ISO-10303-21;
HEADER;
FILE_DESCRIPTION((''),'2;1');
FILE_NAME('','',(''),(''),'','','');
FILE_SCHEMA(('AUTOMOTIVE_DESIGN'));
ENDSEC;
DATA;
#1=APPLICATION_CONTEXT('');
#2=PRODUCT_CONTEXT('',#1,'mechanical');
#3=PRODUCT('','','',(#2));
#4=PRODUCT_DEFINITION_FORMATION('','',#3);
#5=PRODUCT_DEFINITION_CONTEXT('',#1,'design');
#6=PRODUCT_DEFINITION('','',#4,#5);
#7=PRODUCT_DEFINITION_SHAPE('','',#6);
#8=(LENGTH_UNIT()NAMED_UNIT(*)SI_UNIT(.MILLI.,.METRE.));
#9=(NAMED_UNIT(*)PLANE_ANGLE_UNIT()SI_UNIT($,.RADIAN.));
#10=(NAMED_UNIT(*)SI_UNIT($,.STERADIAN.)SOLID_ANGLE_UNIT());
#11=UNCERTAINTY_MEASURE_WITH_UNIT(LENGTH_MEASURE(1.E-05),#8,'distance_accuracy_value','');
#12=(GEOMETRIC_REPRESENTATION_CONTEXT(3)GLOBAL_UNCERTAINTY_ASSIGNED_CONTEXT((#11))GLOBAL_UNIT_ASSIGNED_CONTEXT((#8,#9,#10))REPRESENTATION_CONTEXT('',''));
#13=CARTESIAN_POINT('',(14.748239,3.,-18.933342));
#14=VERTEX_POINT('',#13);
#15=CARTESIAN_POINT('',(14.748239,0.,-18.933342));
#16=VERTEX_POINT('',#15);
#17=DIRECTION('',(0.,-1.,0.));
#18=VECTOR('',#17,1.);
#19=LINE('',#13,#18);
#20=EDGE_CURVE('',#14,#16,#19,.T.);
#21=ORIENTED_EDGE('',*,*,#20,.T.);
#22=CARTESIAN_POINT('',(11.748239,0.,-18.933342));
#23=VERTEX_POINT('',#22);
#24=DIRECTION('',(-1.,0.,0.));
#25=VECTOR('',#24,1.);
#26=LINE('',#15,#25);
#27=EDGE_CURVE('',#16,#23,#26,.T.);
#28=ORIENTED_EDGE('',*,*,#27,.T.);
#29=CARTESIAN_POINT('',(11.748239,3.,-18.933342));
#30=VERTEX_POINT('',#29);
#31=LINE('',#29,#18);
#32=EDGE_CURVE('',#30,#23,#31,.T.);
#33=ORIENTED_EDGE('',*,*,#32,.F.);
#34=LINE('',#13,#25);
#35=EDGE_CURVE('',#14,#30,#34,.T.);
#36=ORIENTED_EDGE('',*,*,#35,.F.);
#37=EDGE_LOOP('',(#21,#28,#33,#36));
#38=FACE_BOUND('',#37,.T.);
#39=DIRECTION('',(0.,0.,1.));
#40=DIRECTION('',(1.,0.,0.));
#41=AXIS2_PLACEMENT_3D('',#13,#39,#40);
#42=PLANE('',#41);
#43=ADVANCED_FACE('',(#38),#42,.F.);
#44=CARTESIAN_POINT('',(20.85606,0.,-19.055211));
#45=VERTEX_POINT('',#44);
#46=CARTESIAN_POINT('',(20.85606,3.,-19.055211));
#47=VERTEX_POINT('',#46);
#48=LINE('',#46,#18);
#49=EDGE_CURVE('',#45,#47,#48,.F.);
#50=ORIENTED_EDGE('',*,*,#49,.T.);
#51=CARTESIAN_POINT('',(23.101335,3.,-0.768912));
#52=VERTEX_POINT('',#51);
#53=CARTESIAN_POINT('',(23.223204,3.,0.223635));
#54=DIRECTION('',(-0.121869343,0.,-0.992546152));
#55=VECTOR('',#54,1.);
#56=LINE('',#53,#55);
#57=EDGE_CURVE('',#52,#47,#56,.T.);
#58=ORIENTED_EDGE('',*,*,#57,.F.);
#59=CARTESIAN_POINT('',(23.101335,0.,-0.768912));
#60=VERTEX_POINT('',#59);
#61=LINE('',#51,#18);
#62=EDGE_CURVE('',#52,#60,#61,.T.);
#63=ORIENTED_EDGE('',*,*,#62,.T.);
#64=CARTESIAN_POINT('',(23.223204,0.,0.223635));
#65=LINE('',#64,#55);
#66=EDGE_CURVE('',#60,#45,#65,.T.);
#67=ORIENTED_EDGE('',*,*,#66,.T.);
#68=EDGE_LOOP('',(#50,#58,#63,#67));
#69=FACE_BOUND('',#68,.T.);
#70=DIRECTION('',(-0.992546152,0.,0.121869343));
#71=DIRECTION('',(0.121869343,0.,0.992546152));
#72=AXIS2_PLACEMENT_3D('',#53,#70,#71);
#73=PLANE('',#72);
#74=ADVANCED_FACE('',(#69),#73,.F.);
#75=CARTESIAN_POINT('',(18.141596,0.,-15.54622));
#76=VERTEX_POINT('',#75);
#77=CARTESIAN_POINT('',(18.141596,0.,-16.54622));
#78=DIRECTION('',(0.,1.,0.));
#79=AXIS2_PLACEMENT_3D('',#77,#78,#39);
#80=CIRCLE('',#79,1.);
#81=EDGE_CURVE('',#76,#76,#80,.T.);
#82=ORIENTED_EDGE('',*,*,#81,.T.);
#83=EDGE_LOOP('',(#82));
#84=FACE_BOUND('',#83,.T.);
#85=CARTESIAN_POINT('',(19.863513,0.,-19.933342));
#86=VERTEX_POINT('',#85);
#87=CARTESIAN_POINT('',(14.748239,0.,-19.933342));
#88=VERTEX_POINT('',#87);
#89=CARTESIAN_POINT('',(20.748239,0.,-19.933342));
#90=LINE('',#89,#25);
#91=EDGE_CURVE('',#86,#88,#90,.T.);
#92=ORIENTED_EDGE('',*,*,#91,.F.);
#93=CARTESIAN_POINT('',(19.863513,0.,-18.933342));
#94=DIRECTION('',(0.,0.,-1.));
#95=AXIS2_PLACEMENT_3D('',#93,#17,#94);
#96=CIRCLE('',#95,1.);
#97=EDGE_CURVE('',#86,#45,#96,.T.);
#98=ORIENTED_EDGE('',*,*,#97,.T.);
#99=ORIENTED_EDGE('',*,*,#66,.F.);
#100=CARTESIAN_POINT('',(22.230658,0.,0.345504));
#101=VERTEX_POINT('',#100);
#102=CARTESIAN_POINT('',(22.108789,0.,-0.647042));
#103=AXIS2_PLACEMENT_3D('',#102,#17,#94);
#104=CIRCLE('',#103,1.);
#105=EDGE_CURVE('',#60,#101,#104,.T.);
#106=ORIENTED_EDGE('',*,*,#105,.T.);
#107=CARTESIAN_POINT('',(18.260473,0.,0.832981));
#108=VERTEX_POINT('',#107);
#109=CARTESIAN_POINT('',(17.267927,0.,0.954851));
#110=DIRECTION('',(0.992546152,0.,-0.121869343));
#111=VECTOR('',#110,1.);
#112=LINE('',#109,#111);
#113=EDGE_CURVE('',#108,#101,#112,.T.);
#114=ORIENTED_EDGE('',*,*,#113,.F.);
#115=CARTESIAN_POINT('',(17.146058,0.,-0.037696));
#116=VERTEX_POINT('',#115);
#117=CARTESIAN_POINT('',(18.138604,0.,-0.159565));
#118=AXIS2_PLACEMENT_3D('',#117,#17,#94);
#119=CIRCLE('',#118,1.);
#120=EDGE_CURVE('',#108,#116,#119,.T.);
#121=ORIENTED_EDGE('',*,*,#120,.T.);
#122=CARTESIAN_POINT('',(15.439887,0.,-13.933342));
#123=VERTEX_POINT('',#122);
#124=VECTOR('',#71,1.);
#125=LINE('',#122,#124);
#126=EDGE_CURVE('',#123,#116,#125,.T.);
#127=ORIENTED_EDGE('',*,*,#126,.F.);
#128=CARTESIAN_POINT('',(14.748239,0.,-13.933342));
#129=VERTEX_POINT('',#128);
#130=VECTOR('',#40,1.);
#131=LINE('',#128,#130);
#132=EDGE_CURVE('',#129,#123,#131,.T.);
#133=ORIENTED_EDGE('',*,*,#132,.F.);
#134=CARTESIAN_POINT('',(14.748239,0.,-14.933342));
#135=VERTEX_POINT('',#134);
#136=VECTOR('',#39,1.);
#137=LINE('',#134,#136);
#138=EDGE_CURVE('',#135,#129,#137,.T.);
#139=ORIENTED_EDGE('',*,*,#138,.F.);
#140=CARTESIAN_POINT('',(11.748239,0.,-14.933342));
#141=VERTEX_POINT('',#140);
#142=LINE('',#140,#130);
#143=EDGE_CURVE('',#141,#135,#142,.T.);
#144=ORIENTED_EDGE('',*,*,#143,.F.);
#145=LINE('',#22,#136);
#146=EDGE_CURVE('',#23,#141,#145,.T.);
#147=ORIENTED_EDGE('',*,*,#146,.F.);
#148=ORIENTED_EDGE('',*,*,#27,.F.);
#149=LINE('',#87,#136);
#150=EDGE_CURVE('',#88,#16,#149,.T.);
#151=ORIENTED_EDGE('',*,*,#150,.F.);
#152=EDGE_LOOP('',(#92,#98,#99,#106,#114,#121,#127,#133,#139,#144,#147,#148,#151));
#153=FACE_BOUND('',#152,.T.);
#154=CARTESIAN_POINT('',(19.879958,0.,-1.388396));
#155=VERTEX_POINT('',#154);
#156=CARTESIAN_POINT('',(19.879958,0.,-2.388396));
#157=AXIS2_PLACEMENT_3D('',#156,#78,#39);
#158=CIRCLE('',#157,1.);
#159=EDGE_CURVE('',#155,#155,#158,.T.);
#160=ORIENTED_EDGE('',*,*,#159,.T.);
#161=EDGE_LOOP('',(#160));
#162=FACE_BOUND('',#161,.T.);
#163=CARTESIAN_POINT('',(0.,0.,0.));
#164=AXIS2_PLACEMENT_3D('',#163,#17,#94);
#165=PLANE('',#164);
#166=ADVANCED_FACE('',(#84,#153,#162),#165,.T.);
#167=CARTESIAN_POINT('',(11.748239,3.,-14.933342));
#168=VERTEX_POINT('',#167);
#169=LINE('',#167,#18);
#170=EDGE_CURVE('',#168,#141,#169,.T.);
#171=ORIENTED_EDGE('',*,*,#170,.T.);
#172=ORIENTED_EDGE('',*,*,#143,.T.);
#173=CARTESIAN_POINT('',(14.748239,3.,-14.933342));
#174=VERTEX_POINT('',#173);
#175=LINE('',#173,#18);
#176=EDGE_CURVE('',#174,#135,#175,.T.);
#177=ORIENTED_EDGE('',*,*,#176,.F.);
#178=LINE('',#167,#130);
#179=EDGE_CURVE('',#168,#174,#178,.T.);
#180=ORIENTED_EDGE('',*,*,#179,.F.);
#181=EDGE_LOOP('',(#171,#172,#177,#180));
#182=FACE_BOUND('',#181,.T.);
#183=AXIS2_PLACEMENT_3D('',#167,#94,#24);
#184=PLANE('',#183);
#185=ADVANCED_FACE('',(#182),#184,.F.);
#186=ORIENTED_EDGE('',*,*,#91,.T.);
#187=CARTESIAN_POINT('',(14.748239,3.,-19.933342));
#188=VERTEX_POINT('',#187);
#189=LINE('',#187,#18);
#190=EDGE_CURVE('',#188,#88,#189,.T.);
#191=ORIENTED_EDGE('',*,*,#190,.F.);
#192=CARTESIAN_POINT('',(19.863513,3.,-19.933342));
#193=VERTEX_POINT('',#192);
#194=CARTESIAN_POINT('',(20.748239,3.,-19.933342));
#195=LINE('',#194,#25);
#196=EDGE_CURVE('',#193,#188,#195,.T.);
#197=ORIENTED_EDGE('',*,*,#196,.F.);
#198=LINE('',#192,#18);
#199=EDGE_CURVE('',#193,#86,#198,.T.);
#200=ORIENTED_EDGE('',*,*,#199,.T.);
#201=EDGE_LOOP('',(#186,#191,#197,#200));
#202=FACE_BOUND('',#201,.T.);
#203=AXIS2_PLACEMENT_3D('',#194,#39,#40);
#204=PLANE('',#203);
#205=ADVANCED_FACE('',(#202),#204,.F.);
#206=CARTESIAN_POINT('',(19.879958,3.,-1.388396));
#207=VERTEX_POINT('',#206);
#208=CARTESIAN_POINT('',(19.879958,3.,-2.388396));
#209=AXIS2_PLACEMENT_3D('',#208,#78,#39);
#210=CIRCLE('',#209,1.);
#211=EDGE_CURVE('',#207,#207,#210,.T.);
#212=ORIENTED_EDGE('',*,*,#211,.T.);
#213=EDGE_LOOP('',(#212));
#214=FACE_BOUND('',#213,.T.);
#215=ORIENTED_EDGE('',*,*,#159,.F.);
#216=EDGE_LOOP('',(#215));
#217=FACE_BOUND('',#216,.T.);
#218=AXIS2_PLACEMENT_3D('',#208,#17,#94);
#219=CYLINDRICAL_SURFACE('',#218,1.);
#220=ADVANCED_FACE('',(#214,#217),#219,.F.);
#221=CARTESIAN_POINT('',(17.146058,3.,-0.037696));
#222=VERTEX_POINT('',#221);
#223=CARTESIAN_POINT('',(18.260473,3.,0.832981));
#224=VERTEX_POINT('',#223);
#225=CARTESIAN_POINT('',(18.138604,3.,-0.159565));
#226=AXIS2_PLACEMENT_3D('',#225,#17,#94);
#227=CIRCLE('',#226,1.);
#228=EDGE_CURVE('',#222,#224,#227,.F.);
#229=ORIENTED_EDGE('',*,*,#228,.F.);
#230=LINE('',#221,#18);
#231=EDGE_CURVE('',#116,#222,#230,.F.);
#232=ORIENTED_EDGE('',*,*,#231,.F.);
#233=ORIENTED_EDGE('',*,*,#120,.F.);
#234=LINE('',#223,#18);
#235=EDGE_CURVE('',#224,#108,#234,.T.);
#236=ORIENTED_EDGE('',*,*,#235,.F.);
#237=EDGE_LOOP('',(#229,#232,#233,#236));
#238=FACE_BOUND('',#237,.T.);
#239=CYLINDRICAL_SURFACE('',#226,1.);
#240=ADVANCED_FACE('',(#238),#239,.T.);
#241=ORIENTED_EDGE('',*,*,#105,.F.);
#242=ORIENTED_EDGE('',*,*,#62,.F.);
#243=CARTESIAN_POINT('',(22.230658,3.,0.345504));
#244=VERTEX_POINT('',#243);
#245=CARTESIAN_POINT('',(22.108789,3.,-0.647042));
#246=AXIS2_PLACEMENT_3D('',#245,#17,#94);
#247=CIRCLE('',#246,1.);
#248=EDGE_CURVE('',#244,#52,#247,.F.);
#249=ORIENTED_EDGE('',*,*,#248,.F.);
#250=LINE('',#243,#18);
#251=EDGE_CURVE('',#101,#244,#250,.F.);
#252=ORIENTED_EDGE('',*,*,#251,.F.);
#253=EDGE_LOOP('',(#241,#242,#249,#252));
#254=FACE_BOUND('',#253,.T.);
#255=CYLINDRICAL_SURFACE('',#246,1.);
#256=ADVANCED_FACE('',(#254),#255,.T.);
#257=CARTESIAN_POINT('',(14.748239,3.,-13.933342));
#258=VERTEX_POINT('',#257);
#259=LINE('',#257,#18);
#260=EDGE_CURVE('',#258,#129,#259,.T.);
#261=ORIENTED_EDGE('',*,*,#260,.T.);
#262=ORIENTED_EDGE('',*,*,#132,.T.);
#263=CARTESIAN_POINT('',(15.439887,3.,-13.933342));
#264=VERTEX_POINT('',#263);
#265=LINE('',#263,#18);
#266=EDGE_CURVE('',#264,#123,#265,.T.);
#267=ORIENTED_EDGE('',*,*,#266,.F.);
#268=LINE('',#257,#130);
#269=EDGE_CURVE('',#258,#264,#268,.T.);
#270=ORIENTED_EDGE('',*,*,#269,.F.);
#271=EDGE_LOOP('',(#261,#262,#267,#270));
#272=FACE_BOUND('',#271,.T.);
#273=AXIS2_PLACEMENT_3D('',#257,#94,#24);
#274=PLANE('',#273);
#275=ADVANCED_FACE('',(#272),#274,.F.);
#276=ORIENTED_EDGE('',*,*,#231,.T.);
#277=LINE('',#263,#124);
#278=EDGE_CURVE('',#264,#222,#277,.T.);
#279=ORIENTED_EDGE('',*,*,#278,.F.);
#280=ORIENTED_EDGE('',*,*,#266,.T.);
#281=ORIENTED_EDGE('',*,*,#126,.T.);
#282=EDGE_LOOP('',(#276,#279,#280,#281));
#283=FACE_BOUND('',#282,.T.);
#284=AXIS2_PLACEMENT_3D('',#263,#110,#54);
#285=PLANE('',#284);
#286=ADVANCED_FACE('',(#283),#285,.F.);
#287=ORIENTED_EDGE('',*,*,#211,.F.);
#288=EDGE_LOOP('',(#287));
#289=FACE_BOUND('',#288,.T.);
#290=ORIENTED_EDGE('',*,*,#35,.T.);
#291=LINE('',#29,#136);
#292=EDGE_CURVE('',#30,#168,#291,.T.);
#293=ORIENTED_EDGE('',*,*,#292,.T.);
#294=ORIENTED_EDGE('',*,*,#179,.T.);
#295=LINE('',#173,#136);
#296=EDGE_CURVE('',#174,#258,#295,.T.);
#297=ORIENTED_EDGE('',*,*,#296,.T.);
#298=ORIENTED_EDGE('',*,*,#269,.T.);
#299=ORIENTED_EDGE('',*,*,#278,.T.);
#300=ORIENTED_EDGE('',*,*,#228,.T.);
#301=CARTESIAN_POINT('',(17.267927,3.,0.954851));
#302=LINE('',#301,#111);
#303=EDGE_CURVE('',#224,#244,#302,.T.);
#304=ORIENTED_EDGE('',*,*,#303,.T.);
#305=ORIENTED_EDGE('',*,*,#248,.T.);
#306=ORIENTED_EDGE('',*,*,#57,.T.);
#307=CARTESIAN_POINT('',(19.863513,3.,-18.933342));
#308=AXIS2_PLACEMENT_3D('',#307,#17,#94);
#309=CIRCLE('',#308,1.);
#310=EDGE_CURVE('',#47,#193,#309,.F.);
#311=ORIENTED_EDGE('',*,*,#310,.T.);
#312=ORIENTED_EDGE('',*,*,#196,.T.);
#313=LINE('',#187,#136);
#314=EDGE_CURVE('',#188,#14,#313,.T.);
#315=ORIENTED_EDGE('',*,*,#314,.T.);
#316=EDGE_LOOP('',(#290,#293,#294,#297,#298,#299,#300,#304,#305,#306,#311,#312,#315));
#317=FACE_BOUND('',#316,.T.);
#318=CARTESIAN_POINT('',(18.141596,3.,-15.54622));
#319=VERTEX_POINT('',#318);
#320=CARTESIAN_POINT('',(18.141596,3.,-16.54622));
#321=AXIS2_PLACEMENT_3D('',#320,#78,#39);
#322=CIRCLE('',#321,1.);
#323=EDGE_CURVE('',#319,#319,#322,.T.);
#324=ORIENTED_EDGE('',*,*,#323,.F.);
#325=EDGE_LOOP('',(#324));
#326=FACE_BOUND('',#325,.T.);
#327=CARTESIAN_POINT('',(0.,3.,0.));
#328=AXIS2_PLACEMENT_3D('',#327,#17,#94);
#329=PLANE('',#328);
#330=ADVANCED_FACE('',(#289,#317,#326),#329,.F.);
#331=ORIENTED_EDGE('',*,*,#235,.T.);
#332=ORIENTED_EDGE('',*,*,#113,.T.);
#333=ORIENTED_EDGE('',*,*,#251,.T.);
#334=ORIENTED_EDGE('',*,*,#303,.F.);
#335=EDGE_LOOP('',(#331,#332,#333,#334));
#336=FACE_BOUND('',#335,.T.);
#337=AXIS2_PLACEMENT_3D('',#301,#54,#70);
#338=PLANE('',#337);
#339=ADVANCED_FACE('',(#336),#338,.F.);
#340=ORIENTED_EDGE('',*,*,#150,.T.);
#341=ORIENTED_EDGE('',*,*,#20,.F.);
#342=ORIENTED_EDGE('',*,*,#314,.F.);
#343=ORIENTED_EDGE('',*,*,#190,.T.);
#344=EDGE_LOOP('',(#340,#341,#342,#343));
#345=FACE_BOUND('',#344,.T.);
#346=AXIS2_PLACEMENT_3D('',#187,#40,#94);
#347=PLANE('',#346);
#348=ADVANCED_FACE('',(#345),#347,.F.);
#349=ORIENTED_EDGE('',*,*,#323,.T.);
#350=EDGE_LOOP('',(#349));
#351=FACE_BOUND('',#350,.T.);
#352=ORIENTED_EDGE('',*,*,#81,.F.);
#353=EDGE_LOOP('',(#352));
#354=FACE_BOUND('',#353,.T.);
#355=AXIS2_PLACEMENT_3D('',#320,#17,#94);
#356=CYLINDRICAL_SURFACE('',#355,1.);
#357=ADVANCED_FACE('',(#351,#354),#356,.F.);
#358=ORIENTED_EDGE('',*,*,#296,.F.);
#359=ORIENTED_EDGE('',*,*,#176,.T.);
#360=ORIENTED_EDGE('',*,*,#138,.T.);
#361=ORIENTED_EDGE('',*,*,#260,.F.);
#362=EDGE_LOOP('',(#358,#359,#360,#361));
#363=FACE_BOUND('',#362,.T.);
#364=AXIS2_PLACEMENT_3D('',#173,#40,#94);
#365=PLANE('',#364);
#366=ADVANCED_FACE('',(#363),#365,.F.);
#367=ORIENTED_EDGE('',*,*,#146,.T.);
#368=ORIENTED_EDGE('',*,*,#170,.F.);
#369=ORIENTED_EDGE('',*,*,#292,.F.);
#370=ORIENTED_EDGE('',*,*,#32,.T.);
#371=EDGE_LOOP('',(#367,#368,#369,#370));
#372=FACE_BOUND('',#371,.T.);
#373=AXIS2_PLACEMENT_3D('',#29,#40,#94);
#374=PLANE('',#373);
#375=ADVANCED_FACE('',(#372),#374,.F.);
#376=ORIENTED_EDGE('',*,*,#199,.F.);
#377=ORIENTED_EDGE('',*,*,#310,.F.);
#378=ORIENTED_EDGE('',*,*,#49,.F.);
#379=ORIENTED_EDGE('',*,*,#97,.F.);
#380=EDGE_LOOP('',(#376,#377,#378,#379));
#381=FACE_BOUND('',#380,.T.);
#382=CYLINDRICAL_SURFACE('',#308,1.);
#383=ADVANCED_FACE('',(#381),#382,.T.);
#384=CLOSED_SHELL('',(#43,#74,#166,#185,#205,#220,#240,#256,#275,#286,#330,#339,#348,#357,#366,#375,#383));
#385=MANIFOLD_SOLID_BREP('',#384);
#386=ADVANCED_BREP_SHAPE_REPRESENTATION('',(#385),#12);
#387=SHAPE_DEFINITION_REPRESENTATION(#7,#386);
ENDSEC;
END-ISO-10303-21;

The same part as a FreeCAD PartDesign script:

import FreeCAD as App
import Part
import Sketcher

V = App.Vector
Q = App.Units.Quantity


def edges_at(feature, points):
    """Names of the edges that pass closest to the given points."""
    edges = feature.Shape.Edges
    near = lambda p: min(range(len(edges)), key=lambda i: edges[i].distToShape(Part.Vertex(*p))[0])
    return sorted({f"Edge{near(p) + 1}" for p in points})

doc = App.newDocument("Part")
body = doc.addObject("PartDesign::Body", "Body")

# Sketch on XZ plane
sketch1 = body.newObject("Sketcher::SketchObject", "Sketch")
sketch1.AttachmentSupport = (doc.getObject("XZ_Plane"), [""])
sketch1.MapMode = "FlatFace"
sketch1.addGeometry([
    Part.LineSegment(V(20.7, -19.9, 0), V(14.7, -19.9, 0)),  # 0
    Part.LineSegment(V(14.7, -19.9, 0), V(14.7, -18.9, 0)),  # 1
    Part.LineSegment(V(14.7, -18.9, 0), V(11.7, -18.9, 0)),  # 2
    Part.LineSegment(V(11.7, -18.9, 0), V(11.7, -14.9, 0)),  # 3
    Part.LineSegment(V(11.7, -14.9, 0), V(14.7, -14.9, 0)),  # 4
    Part.LineSegment(V(14.7, -14.9, 0), V(14.7, -13.9, 0)),  # 5
    Part.LineSegment(V(14.7, -13.9, 0), V(15.4, -13.9, 0)),  # 6
    Part.LineSegment(V(15.4, -13.9, 0), V(17.3, 1, 0)),  # 7
    Part.LineSegment(V(17.3, 1, 0), V(23.2, 0.2, 0)),  # 8
    Part.LineSegment(V(23.2, 0.2, 0), V(20.7, -19.9, 0)),  # 9
    Part.Circle(V(19.9, -2.4, 0), V(0, 0, 1), 1),  # 10
    Part.Circle(V(18.1, -16.5, 0), V(0, 0, 1), 1),  # 11
], False)
sketch1.addConstraint([
    Sketcher.Constraint("Coincident", 0, 2, 1, 1),
    Sketcher.Constraint("Coincident", 1, 2, 2, 1),
    Sketcher.Constraint("Coincident", 2, 2, 3, 1),
    Sketcher.Constraint("Coincident", 3, 2, 4, 1),
    Sketcher.Constraint("Coincident", 4, 2, 5, 1),
    Sketcher.Constraint("Coincident", 5, 2, 6, 1),
    Sketcher.Constraint("Coincident", 6, 2, 7, 1),
    Sketcher.Constraint("Coincident", 7, 2, 8, 1),
    Sketcher.Constraint("Coincident", 8, 2, 9, 1),
    Sketcher.Constraint("Coincident", 9, 2, 0, 1),
    Sketcher.Constraint("Horizontal", 0),
    Sketcher.Constraint("Vertical", 1),
    Sketcher.Constraint("Horizontal", 2),
    Sketcher.Constraint("Vertical", 3),
    Sketcher.Constraint("Horizontal", 4),
    Sketcher.Constraint("Vertical", 5),
    Sketcher.Constraint("Horizontal", 6),
    Sketcher.Constraint("Equal", 10, 11),
    Sketcher.Constraint("Perpendicular", 7, 8),
    Sketcher.Constraint("Perpendicular", 8, 9),
    Sketcher.Constraint("Vertical", 1, 2, 4, 2),
    Sketcher.Constraint("Equal", 1, 5),
    Sketcher.Constraint("Diameter", 10, Q("2 mm")),
    Sketcher.Constraint("DistanceX", 0, 2, 0, 1, Q("6 mm")),
    Sketcher.Constraint("DistanceX", 2, 2, 2, 1, Q("3 mm")),
    Sketcher.Constraint("DistanceY", 1, 1, 1, 2, Q("1 mm")),
    Sketcher.Constraint("DistanceY", 3, 1, 3, 2, Q("4 mm")),
    Sketcher.Constraint("Angle", 7, Q("83 deg")),
    Sketcher.Constraint("Distance", 7, Q("15 mm")),
    Sketcher.Constraint("Distance", 8, Q("6 mm")),
    Sketcher.Constraint("DistanceY", 11, 3, -1, 1, Q("16.54622 mm")),
    Sketcher.Constraint("DistanceX", -1, 1, 0, 2, Q("14.748239 mm")),
    Sketcher.Constraint("DistanceY", 0, 2, -1, 1, Q("19.933342 mm")),
    Sketcher.Constraint("DistanceX", 0, 2, 10, 3, Q("5.131719 mm")),
    Sketcher.Constraint("DistanceX", 6, 2, 11, 3, Q("2.701708 mm")),
    Sketcher.Constraint("DistanceY", 10, 3, 8, 2, Q("2.61203 mm")),
])
pad1 = body.newObject("PartDesign::Pad", "Pad")
pad1.Profile = sketch1
pad1.Length = 3
pad1.Reversed = True
doc.recompute()

fillet = body.newObject("PartDesign::Fillet", "Fillet")
fillet.Base = (pad1, edges_at(pad1, [(20.748, 1.5, -19.933), (23.223, 1.5, 0.224), (17.268, 1.5, 0.955)]))
fillet.Radius = 1

doc.recompute()
